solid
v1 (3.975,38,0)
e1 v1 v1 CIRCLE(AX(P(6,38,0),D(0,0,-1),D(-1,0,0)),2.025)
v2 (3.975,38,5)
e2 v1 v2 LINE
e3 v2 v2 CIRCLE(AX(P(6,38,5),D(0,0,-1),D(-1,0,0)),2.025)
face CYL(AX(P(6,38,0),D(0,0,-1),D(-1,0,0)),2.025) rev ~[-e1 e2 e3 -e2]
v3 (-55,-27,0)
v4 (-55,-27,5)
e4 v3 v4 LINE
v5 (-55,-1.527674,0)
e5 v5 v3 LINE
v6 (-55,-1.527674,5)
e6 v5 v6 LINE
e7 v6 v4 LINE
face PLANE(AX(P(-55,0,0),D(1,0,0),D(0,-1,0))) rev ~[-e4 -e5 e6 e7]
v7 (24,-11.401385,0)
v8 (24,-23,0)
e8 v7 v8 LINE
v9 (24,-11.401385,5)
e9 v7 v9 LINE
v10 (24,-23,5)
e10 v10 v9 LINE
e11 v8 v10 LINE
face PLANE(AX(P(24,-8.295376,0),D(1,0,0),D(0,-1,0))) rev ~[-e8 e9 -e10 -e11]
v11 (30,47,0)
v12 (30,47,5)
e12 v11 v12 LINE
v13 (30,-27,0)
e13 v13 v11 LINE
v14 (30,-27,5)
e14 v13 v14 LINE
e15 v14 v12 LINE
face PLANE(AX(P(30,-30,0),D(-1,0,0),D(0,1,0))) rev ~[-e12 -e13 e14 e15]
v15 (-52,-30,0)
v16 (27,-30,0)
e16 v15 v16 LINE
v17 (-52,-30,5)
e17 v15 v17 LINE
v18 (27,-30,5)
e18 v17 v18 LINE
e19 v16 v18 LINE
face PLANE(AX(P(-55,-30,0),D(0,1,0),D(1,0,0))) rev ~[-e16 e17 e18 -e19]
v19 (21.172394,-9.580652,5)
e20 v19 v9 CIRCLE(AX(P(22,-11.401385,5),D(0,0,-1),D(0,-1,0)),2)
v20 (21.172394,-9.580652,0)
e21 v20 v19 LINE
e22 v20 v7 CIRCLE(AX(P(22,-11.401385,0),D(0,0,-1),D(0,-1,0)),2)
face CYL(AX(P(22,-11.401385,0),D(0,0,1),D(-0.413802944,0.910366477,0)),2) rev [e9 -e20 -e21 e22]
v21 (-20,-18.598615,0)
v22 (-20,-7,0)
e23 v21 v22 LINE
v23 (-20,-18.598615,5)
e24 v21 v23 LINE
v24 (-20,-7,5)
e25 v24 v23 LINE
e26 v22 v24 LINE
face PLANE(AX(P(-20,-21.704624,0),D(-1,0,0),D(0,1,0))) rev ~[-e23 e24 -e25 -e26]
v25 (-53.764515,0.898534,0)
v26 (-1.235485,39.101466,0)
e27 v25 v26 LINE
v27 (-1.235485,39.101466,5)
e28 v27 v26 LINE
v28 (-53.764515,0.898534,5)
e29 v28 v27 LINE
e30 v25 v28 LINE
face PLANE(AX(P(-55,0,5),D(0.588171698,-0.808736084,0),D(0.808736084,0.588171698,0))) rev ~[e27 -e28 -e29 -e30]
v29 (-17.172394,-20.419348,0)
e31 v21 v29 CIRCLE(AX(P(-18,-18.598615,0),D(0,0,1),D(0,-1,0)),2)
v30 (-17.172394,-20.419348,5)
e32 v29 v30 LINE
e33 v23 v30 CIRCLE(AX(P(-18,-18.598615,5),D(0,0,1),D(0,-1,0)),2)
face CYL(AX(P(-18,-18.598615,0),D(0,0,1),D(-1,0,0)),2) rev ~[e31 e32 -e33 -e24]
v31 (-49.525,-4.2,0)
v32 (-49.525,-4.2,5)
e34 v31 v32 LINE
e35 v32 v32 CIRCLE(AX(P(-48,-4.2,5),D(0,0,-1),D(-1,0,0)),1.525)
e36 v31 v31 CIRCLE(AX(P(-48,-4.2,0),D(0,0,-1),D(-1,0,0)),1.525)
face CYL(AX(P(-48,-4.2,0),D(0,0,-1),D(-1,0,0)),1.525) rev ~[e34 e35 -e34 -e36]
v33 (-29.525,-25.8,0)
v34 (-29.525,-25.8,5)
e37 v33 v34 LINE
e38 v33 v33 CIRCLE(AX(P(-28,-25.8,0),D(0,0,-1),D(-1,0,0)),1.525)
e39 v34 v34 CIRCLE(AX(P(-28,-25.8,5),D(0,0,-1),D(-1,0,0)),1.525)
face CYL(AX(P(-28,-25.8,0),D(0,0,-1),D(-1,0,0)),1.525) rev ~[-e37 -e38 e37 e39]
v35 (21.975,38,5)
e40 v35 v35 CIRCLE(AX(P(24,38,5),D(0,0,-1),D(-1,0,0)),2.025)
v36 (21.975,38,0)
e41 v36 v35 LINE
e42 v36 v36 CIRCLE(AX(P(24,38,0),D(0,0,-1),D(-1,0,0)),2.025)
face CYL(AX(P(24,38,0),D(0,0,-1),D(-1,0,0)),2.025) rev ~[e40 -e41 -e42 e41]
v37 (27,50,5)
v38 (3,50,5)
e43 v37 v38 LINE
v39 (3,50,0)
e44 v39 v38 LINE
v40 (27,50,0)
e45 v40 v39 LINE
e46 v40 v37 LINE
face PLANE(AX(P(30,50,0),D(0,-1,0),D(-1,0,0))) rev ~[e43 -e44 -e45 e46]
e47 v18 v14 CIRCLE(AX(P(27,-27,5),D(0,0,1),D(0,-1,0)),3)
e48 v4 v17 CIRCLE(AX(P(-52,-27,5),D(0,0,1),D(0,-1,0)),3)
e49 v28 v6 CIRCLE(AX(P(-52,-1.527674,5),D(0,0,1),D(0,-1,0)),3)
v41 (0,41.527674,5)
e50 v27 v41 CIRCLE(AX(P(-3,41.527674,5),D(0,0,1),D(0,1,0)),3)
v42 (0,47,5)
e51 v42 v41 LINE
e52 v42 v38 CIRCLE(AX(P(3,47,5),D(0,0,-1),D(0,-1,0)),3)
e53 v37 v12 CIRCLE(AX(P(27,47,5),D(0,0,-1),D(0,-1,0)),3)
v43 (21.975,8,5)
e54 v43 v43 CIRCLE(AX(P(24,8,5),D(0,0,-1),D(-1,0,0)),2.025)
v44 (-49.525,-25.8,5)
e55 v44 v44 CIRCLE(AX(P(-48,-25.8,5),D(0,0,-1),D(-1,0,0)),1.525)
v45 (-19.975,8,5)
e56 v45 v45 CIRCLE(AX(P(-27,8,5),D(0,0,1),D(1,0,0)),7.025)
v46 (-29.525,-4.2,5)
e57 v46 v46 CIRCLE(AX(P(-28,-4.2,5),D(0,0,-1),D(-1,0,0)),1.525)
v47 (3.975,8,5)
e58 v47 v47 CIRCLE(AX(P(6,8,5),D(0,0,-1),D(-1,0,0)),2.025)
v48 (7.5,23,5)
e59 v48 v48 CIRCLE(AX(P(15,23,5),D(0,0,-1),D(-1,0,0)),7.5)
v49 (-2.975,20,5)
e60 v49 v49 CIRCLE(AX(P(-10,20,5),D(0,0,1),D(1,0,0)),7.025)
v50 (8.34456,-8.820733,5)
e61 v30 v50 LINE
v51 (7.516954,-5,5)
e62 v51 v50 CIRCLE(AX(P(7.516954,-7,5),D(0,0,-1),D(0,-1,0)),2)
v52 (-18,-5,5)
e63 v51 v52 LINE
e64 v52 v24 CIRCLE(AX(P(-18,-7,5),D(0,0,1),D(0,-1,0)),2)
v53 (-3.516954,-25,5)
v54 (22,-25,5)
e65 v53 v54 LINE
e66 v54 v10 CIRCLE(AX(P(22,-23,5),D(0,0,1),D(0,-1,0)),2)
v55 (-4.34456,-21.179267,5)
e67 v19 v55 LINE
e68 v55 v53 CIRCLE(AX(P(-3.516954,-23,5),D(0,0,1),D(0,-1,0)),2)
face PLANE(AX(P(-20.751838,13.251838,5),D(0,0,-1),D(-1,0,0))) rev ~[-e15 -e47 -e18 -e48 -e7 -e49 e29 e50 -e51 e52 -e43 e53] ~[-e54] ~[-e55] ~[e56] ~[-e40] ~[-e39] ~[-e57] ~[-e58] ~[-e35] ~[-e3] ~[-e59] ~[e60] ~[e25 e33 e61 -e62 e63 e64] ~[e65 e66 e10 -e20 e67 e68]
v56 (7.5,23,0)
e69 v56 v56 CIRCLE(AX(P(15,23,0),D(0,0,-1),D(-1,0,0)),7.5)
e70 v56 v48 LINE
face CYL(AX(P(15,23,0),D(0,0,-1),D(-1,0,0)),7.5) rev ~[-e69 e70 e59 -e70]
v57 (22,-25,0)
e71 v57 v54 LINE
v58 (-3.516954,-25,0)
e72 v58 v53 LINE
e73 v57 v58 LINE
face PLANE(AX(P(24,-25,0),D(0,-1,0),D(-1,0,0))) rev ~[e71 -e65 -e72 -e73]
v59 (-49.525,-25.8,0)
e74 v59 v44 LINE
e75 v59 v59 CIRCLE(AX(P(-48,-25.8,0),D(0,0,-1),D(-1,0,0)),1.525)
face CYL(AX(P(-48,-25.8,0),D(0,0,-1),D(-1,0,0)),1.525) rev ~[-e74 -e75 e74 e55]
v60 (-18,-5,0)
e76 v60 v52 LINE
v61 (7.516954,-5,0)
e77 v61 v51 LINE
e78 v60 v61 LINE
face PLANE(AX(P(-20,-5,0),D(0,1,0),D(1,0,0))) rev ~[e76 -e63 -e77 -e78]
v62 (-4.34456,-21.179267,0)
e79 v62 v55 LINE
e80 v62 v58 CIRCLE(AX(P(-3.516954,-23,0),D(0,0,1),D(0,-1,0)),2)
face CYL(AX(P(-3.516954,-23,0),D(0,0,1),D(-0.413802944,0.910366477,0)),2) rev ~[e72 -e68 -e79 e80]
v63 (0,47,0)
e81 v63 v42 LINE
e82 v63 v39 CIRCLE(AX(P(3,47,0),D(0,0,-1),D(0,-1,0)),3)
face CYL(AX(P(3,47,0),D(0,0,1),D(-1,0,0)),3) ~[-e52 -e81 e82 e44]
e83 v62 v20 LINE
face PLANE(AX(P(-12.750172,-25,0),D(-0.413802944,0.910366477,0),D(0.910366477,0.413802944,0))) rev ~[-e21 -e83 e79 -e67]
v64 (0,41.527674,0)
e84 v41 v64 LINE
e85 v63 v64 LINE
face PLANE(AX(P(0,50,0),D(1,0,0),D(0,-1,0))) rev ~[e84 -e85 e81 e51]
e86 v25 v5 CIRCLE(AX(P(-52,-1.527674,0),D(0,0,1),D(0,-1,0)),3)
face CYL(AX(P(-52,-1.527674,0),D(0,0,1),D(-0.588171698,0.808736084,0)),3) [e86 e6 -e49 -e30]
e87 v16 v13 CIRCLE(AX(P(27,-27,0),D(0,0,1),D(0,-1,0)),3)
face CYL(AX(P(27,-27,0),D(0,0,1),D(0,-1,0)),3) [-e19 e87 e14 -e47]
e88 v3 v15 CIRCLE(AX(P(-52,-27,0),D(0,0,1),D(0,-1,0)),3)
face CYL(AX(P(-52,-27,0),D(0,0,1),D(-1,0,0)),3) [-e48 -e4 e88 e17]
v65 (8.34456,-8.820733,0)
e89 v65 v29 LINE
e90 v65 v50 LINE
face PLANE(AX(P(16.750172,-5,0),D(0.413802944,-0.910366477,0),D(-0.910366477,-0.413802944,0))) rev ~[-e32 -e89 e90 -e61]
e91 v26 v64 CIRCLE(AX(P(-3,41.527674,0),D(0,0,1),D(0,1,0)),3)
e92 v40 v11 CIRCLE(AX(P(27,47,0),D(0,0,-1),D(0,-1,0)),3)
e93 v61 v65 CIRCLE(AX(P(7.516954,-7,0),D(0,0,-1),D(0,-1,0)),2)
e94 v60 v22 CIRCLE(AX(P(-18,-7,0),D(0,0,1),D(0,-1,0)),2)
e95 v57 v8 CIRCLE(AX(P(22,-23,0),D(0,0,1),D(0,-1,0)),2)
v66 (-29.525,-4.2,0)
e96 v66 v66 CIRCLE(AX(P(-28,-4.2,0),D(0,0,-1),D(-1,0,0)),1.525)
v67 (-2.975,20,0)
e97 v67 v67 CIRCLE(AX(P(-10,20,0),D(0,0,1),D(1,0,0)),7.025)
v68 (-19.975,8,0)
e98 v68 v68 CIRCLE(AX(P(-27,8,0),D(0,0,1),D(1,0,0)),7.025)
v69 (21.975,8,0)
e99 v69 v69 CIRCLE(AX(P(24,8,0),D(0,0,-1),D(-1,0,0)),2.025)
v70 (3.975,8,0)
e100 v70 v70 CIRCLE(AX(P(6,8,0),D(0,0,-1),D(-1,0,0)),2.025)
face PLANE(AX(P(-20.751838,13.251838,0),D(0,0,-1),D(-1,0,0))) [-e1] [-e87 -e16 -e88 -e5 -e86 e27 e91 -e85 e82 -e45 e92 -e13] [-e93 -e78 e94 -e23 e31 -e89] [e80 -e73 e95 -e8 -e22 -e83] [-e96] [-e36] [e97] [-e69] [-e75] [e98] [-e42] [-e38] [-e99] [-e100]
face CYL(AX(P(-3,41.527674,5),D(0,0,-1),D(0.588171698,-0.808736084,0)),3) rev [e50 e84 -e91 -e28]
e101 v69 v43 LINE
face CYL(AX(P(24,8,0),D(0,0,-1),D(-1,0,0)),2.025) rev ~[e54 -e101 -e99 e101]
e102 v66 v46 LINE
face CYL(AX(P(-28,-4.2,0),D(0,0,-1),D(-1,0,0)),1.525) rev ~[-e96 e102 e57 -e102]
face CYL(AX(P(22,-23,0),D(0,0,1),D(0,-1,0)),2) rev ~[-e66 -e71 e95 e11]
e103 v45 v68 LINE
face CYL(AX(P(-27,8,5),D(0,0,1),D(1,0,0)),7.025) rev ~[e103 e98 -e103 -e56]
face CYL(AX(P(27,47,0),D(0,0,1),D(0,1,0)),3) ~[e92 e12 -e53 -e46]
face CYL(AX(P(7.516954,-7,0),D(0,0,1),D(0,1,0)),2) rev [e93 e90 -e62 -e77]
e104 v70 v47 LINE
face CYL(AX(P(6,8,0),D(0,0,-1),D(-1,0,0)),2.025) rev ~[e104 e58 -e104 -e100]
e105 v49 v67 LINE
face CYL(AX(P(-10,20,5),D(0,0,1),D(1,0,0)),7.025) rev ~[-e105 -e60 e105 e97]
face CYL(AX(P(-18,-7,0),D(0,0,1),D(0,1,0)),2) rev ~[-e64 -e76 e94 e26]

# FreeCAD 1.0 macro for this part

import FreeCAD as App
import Part
import Sketcher
from FreeCAD import Vector
Q = App.Units.Quantity


def edges_at(feature, points):
    """Names of the edges that pass closest to the given points."""
    edges = feature.Shape.Edges
    near = lambda p: min(range(len(edges)), key=lambda i: edges[i].distToShape(Part.Vertex(*p))[0])
    return sorted({f"Edge{near(p) + 1}" for p in points})

doc = App.newDocument("Part")
body = doc.addObject("PartDesign::Body", "Body")

# Sketch on XY plane
sketch1 = body.newObject("Sketcher::SketchObject", "Sketch")
sketch1.AttachmentSupport = (doc.getObject("XY_Plane"), [""])
sketch1.MapMode = "FlatFace"
sketch1.addGeometry([
    Part.LineSegment(Vector(0, 0, 0), Vector(-55, 0, 0)),  # 0
    Part.LineSegment(Vector(-55, 0, 0), Vector(-55, -30, 0)),  # 1
    Part.LineSegment(Vector(-55, -30, 0), Vector(30, -30, 0)),  # 2
    Part.LineSegment(Vector(30, -30, 0), Vector(30, 50, 0)),  # 3
    Part.LineSegment(Vector(30, 50, 0), Vector(0, 50, 0)),  # 4
    Part.LineSegment(Vector(0, 50, 0), Vector(0, 0, 0)),  # 5
], False)
sketch1.addConstraint([
    Sketcher.Constraint("Coincident", 0, 2, 1, 1),
    Sketcher.Constraint("Coincident", 1, 2, 2, 1),
    Sketcher.Constraint("Coincident", 2, 2, 3, 1),
    Sketcher.Constraint("Coincident", 3, 2, 4, 1),
    Sketcher.Constraint("Coincident", 4, 2, 5, 1),
    Sketcher.Constraint("Coincident", 5, 2, 0, 1),
    Sketcher.Constraint("Horizontal", 0),
    Sketcher.Constraint("Vertical", 1),
    Sketcher.Constraint("Horizontal", 2),
    Sketcher.Constraint("Vertical", 3),
    Sketcher.Constraint("Horizontal", 4),
    Sketcher.Constraint("Vertical", 5),
    Sketcher.Constraint("Coincident", 5, 2, -1, 1),
    Sketcher.Constraint("Equal", 4, 1),
    Sketcher.Constraint("DistanceX", 0, 2, 0, 1, Q("55 mm")),
    Sketcher.Constraint("DistanceX", 2, 1, 2, 2, Q("85 mm")),
    Sketcher.Constraint("DistanceY", 3, 1, 3, 2, Q("80 mm")),
])
pad1 = body.newObject("PartDesign::Pad", "Pad")
pad1.Profile = sketch1
pad1.Length = 5

# Sketch on XY plane
sketch2 = body.newObject("Sketcher::SketchObject", "Sketch001")
sketch2.AttachmentSupport = (doc.getObject("XY_Plane"), [""])
sketch2.MapMode = "FlatFace"
sketch2.AttachmentOffset = App.Placement(Vector(0, 0, 5), App.Rotation())
sketch2.addGeometry([
    Part.LineSegment(Vector(0, 40, 0), Vector(-45, 0, 0)),
    Part.LineSegment(Vector(-45, 0, 0), Vector(0, 0, 0)),
    Part.LineSegment(Vector(0, 0, 0), Vector(0, 40, 0)),
], False)
sketch2.addConstraint([
    Sketcher.Constraint("Coincident", 0, 2, 1, 1),
    Sketcher.Constraint("Coincident", 1, 2, 2, 1),
    Sketcher.Constraint("Coincident", 2, 2, 0, 1),
    Sketcher.Constraint("Horizontal", 1),
    Sketcher.Constraint("Vertical", 2),
    Sketcher.Constraint("Coincident", 1, 2, -1, 1),
    Sketcher.Constraint("DistanceX", 1, 1, 1, 2, Q("45 mm")),
    Sketcher.Constraint("DistanceY", 2, 1, 2, 2, Q("40 mm")),
])
pad2 = body.newObject("PartDesign::Pad", "Pad001")
pad2.Profile = sketch2
pad2.Length = 5
pad2.Reversed = True

# Sketch on XY plane
sketch3 = body.newObject("Sketcher::SketchObject", "Sketch002")
sketch3.AttachmentSupport = (doc.getObject("XY_Plane"), [""])
sketch3.MapMode = "FlatFace"
sketch3.AttachmentOffset = App.Placement(Vector(0, 0, 5), App.Rotation())
sketch3.addGeometry([
    Part.LineSegment(Vector(0, 0, 0), Vector(0, 33, 0)),
    Part.LineSegment(Vector(0, 33, 0), Vector(-37, 0, 0)),
    Part.LineSegment(Vector(-37, 0, 0), Vector(0, 0, 0)),
], False)
sketch3.addConstraint([
    Sketcher.Constraint("Coincident", 0, 2, 1, 1),
    Sketcher.Constraint("Coincident", 1, 2, 2, 1),
    Sketcher.Constraint("Coincident", 2, 2, 0, 1),
    Sketcher.Constraint("Vertical", 0),
    Sketcher.Constraint("Horizontal", 2),
    Sketcher.Constraint("Coincident", 2, 2, -1, 1),
    Sketcher.Constraint("Distance", 1, Q("50.138528 mm")),
    Sketcher.Constraint("DistanceX", 2, 1, 2, 2, Q("37.474003 mm")),
])
pocket1 = body.newObject("PartDesign::Pocket", "Pocket")
pocket1.Profile = sketch3
pocket1.Length = 5

# Sketch on XY plane
sketch4 = body.newObject("Sketcher::SketchObject", "Sketch003")
sketch4.AttachmentSupport = (doc.getObject("XY_Plane"), [""])
sketch4.MapMode = "FlatFace"
sketch4.addGeometry(Part.Circle(Vector(-48, -4.2, 0), Vector(0, 0, 1), 1.5), False)
sketch4.addConstraint([
    Sketcher.Constraint("Diameter", 0, Q("3.05 mm")),
    Sketcher.Constraint("DistanceX", 0, 3, -1, 1, Q("48 mm")),
    Sketcher.Constraint("DistanceY", 0, 3, -1, 1, Q("4.2 mm")),
])
pocket2 = body.newObject("PartDesign::Pocket", "Pocket001")
pocket2.Profile = sketch4
pocket2.Type = "UpToFirst"
pocket2.Reversed = True

# Sketch on XY plane
sketch5 = body.newObject("Sketcher::SketchObject", "Sketch004")
sketch5.AttachmentSupport = (doc.getObject("XY_Plane"), [""])
sketch5.MapMode = "FlatFace"
sketch5.addGeometry(Part.Circle(Vector(-48, -25.8, 0), Vector(0, 0, 1), 1.5), False)
sketch5.addConstraint([
    Sketcher.Constraint("Diameter", 0, Q("3.05 mm")),
    Sketcher.Constraint("DistanceX", 0, 3, -1, 1, Q("48 mm")),
    Sketcher.Constraint("DistanceY", 0, 3, -1, 1, Q("25.8 mm")),
])
pocket3 = body.newObject("PartDesign::Pocket", "Pocket002")
pocket3.Profile = sketch5
pocket3.Type = "UpToFirst"
pocket3.Reversed = True

# Sketch on XY plane
sketch6 = body.newObject("Sketcher::SketchObject", "Sketch005")
sketch6.AttachmentSupport = (doc.getObject("XY_Plane"), [""])
sketch6.MapMode = "FlatFace"
sketch6.addGeometry(Part.Circle(Vector(-28, -4.2, 0), Vector(0, 0, 1), 1.5), False)
sketch6.addConstraint([
    Sketcher.Constraint("Diameter", 0, Q("3.05 mm")),
    Sketcher.Constraint("DistanceX", 0, 3, -1, 1, Q("28 mm")),
    Sketcher.Constraint("DistanceY", 0, 3, -1, 1, Q("4.2 mm")),
])
pocket4 = body.newObject("PartDesign::Pocket", "Pocket003")
pocket4.Profile = sketch6
pocket4.Type = "UpToFirst"
pocket4.Reversed = True

# Sketch on XY plane
sketch7 = body.newObject("Sketcher::SketchObject", "Sketch006")
sketch7.AttachmentSupport = (doc.getObject("XY_Plane"), [""])
sketch7.MapMode = "FlatFace"
sketch7.addGeometry(Part.Circle(Vector(-28, -25.8, 0), Vector(0, 0, 1), 1.5), False)
sketch7.addConstraint([
    Sketcher.Constraint("Diameter", 0, Q("3.05 mm")),
    Sketcher.Constraint("DistanceX", 0, 3, -1, 1, Q("28 mm")),
    Sketcher.Constraint("DistanceY", 0, 3, -1, 1, Q("25.8 mm")),
])
pocket5 = body.newObject("PartDesign::Pocket", "Pocket004")
pocket5.Profile = sketch7
pocket5.Type = "UpToFirst"
pocket5.Reversed = True

# Sketch on XY plane
sketch8 = body.newObject("Sketcher::SketchObject", "Sketch007")
sketch8.AttachmentSupport = (doc.getObject("XY_Plane"), [""])
sketch8.MapMode = "FlatFace"
sketch8.addGeometry([
    Part.Circle(Vector(6, 38, 0), Vector(0, 0, 1), 2),
    Part.Circle(Vector(24, 38, 0), Vector(0, 0, 1), 2),
    Part.Circle(Vector(24, 8, 0), Vector(0, 0, 1), 2),
    Part.Circle(Vector(6, 8, 0), Vector(0, 0, 1), 2),
], False)
sketch8.addConstraint([
    Sketcher.Constraint("Equal", 0, 1),
    Sketcher.Constraint("Equal", 1, 2),
    Sketcher.Constraint("Equal", 2, 3),
    Sketcher.Constraint("Horizontal", 0, 3, 1, 3),
    Sketcher.Constraint("Horizontal", 2, 3, 3, 3),
    Sketcher.Constraint("Vertical", 1, 3, 2, 3),
    Sketcher.Constraint("Vertical", 0, 3, 3, 3),
    Sketcher.Constraint("Diameter", 0, Q("4.05 mm")),
    Sketcher.Constraint("DistanceX", -1, 1, 0, 3, Q("6 mm")),
    Sketcher.Constraint("DistanceY", -1, 1, 0, 3, Q("38 mm")),
    Sketcher.Constraint("DistanceX", -1, 1, 1, 3, Q("24 mm")),
    Sketcher.Constraint("DistanceY", -1, 1, 2, 3, Q("8 mm")),
])
pocket6 = body.newObject("PartDesign::Pocket", "Pocket005")
pocket6.Profile = sketch8
pocket6.Type = "ThroughAll"
pocket6.Midplane = True

# Sketch on XY plane
sketch9 = body.newObject("Sketcher::SketchObject", "Sketch008")
sketch9.AttachmentSupport = (doc.getObject("XY_Plane"), [""])
sketch9.MapMode = "FlatFace"
sketch9.addGeometry([
    Part.LineSegment(Vector(-13, -25, 0), Vector(24, -8, 0)),  # 0
    Part.LineSegment(Vector(24, -8, 0), Vector(24, -25, 0)),  # 1
    Part.LineSegment(Vector(24, -25, 0), Vector(-13, -25, 0)),  # 2
    Part.LineSegment(Vector(-20, -5, 0), Vector(17, -5, 0)),  # 3
    Part.LineSegment(Vector(17, -5, 0), Vector(-20, -22, 0)),  # 4
    Part.LineSegment(Vector(-20, -22, 0), Vector(-20, -5, 0)),  # 5
], False)
sketch9.addConstraint([
    Sketcher.Constraint("Coincident", 0, 2, 1, 1),
    Sketcher.Constraint("Coincident", 1, 2, 2, 1),
    Sketcher.Constraint("Coincident", 2, 2, 0, 1),
    Sketcher.Constraint("Coincident", 3, 2, 4, 1),
    Sketcher.Constraint("Coincident", 4, 2, 5, 1),
    Sketcher.Constraint("Coincident", 5, 2, 3, 1),
    Sketcher.Constraint("Vertical", 1),
    Sketcher.Constraint("Horizontal", 2),
    Sketcher.Constraint("Horizontal", 3),
    Sketcher.Constraint("Vertical", 5),
    Sketcher.Constraint("Parallel", 0, 4),
    Sketcher.Constraint("Equal", 2, 3),
    Sketcher.Constraint("DistanceX", -1, 1, 0, 2, Q("24 mm")),
    Sketcher.Constraint("DistanceY", 1, 2, -1, 1, Q("25 mm")),
    Sketcher.Constraint("DistanceY", 3, 2, -1, 1, Q("5 mm")),
    Sketcher.Constraint("DistanceX", 4, 2, -1, 1, Q("20 mm")),
    Sketcher.Constraint("DistanceX", 2, 2, 2, 1, Q("36.750172 mm")),
    Sketcher.Constraint("DistanceY", 1, 2, 1, 1, Q("16.704624 mm")),
])
pocket7 = body.newObject("PartDesign::Pocket", "Pocket006")
pocket7.Profile = sketch9
pocket7.Type = "ThroughAll"
pocket7.Reversed = True
doc.recompute()

fillet = body.newObject("PartDesign::Fillet", "Fillet")
fillet.Base = (pocket7, edges_at(pocket7, [
    (16.75, -5, 2.5),
    (-20, -5, 2.5),
    (-20, -21.705, 2.5),
    (24, -8.295, 2.5),
    (-12.75, -25, 2.5),
    (24, -25, 2.5),
]))
fillet.Radius = 2

# Sketch on XY plane
sketch10 = body.newObject("Sketcher::SketchObject", "Sketch009")
sketch10.AttachmentSupport = (doc.getObject("XY_Plane"), [""])
sketch10.MapMode = "FlatFace"
sketch10.addGeometry(Part.Circle(Vector(15, 23, 0), Vector(0, 0, 1), 8), False)
sketch10.addConstraint([
    Sketcher.Constraint("Diameter", 0, Q("15 mm")),
    Sketcher.Constraint("DistanceX", -1, 1, 0, 3, Q("15 mm")),
    Sketcher.Constraint("DistanceY", -1, 1, 0, 3, Q("23 mm")),
])
pocket8 = body.newObject("PartDesign::Pocket", "Pocket007")
pocket8.Profile = sketch10
pocket8.Length = 5
pocket8.Reversed = True

# Sketch on XY plane
sketch11 = body.newObject("Sketcher::SketchObject", "Sketch010")
sketch11.AttachmentSupport = (doc.getObject("XY_Plane"), [""])
sketch11.MapMode = "FlatFace"
sketch11.AttachmentOffset = App.Placement(Vector(0, 0, 5), App.Rotation())
sketch11.addGeometry([
    Part.LineSegment(Vector(0, 40, 0), Vector(-55, 0, 0)),
    Part.LineSegment(Vector(-55, 0, 0), Vector(0, 0, 0)),
    Part.LineSegment(Vector(0, 0, 0), Vector(0, 40, 0)),
], False)
sketch11.addConstraint([
    Sketcher.Constraint("Coincident", 0, 2, 1, 1),
    Sketcher.Constraint("Coincident", 1, 2, 2, 1),
    Sketcher.Constraint("Coincident", 2, 2, 0, 1),
    Sketcher.Constraint("Horizontal", 1),
    Sketcher.Constraint("Vertical", 2),
    Sketcher.Constraint("Coincident", 1, 2, -1, 1),
    Sketcher.Constraint("DistanceX", 1, 1, 1, 2, Q("55 mm")),
    Sketcher.Constraint("DistanceY", 2, 1, 2, 2, Q("40 mm")),
])
pad3 = body.newObject("PartDesign::Pad", "Pad002")
pad3.Profile = sketch11
pad3.Length = 5
pad3.Reversed = True

# Sketch on XY plane
sketch12 = body.newObject("Sketcher::SketchObject", "Sketch011")
sketch12.AttachmentSupport = (doc.getObject("XY_Plane"), [""])
sketch12.MapMode = "FlatFace"
sketch12.AttachmentOffset = App.Placement(Vector(0, 0, 5), App.Rotation())
sketch12.addGeometry([
    Part.Circle(Vector(-27, 8, 0), Vector(0, 0, 1), 7),
    Part.Circle(Vector(-10, 20, 0), Vector(0, 0, 1), 7),
], False)
sketch12.addConstraint([
    Sketcher.Constraint("Equal", 0, 1),
    Sketcher.Constraint("Diameter", 0, Q("14.05 mm")),
    Sketcher.Constraint("DistanceX", 0, 3, -1, 1, Q("27 mm")),
    Sketcher.Constraint("DistanceY", -1, 1, 0, 3, Q("8 mm")),
    Sketcher.Constraint("DistanceX", 1, 3, -1, 1, Q("10 mm")),
    Sketcher.Constraint("DistanceY", -1, 1, 1, 3, Q("20 mm")),
])
pocket9 = body.newObject("PartDesign::Pocket", "Pocket008")
pocket9.Profile = sketch12
pocket9.Length = 5
doc.recompute()

fillet2 = body.newObject("PartDesign::Fillet", "Fillet001")
fillet2.Base = (pocket9, edges_at(pocket9, [
    (0, 50, 2.5),
    (30, 50, 2.5),
    (30, -30, 2.5),
    (-55, -30, 2.5),
    (-55, 0, 2.5),
    (0, 40, 2.5),
]))
fillet2.Radius = 3

doc.recompute()
